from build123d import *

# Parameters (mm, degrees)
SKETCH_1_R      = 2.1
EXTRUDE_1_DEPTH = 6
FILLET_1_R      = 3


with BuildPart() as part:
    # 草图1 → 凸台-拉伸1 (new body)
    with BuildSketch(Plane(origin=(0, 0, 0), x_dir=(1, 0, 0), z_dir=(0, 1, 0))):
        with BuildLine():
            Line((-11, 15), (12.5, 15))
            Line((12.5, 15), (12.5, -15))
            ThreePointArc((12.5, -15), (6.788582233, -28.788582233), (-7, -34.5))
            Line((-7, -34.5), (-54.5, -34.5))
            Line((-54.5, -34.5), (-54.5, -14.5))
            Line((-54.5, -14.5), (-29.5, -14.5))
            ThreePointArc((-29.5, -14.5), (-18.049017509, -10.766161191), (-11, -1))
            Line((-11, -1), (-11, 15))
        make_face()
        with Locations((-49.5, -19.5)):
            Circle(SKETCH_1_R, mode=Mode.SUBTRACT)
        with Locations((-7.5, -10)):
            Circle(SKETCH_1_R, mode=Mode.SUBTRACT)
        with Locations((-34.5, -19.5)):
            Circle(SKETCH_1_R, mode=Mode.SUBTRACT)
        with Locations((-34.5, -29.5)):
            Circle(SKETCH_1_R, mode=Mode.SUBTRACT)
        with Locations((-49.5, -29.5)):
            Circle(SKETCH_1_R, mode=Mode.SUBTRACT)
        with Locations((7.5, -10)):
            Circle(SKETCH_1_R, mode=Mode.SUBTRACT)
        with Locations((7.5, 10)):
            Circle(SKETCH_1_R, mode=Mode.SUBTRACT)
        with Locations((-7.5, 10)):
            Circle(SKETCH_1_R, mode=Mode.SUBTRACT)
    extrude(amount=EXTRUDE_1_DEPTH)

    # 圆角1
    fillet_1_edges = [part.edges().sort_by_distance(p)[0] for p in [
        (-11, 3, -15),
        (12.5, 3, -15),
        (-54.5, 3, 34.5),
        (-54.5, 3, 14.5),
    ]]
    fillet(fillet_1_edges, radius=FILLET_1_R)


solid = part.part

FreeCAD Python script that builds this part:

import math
import FreeCAD as App
import Part
import Sketcher

V = App.Vector
Q = App.Units.Quantity


def edges_at(feature, points):
    """Names of the edges that pass closest to the given points."""
    edges = feature.Shape.Edges
    near = lambda p: min(range(len(edges)), key=lambda i: edges[i].distToShape(Part.Vertex(*p))[0])
    return sorted({f"Edge{near(p) + 1}" for p in points})

doc = App.newDocument("Part")
body = doc.addObject("PartDesign::Body", "Body")

# Sketch on XZ plane
sketch1 = body.newObject("Sketcher::SketchObject", "Sketch")
sketch1.AttachmentSupport = (doc.getObject("XZ_Plane"), [""])
sketch1.MapMode = "FlatFace"
sketch1.addGeometry([
    Part.LineSegment(V(12.5, -15, 0), V(-11, -15, 0)),  # 0
    Part.LineSegment(V(-11, -15, 0), V(-11, 1, 0)),  # 1
    Part.ArcOfCircle(Part.Circle(V(-29.5, -4.9, 0), V(0, 0, 1), 19.4), math.radians(18), math.radians(90)),  # 2
    Part.LineSegment(V(-29.5, 14.5, 0), V(-54.5, 14.5, 0)),  # 3
    Part.LineSegment(V(-54.5, 14.5, 0), V(-54.5, 34.5, 0)),  # 4
    Part.LineSegment(V(-54.5, 34.5, 0), V(-7, 34.5, 0)),  # 5
    Part.ArcOfCircle(Part.Circle(V(-7, 15, 0), V(0, 0, 1), 19.5), math.radians(0), math.radians(90)),  # 6
    Part.LineSegment(V(12.5, 15, 0), V(12.5, -15, 0)),  # 7
    Part.Circle(V(7.5, 10, 0), V(0, 0, 1), 2.1),  # 8
    Part.Circle(V(-7.5, 10, 0), V(0, 0, 1), 2.1),  # 9
    Part.Circle(V(-34.5, 29.5, 0), V(0, 0, 1), 2.1),  # 10
    Part.Circle(V(-49.5, 29.5, 0), V(0, 0, 1), 2.1),  # 11
    Part.Circle(V(-34.5, 19.5, 0), V(0, 0, 1), 2.1),  # 12
    Part.Circle(V(-49.5, 19.5, 0), V(0, 0, 1), 2.1),  # 13
    Part.Circle(V(7.5, -10, 0), V(0, 0, 1), 2.1),  # 14
    Part.Circle(V(-7.5, -10, 0), V(0, 0, 1), 2.1),  # 15
], False)
sketch1.addConstraint([
    Sketcher.Constraint("Coincident", 0, 2, 1, 1),
    Sketcher.Constraint("Coincident", 1, 2, 2, 1),
    Sketcher.Constraint("Tangent", 2, 2, 3, 1),
    Sketcher.Constraint("Coincident", 3, 2, 4, 1),
    Sketcher.Constraint("Coincident", 4, 2, 5, 1),
    Sketcher.Constraint("Tangent", 5, 2, 6, 2),
    Sketcher.Constraint("Tangent", 6, 1, 7, 1),
    Sketcher.Constraint("Coincident", 7, 2, 0, 1),
    Sketcher.Constraint("Horizontal", 0),
    Sketcher.Constraint("Vertical", 1),
    Sketcher.Constraint("Horizontal", 3),
    Sketcher.Constraint("Vertical", 4),
    Sketcher.Constraint("Horizontal", 5),
    Sketcher.Constraint("Vertical", 7),
    Sketcher.Constraint("Equal", 8, 9),
    Sketcher.Constraint("Equal", 9, 10),
    Sketcher.Constraint("Equal", 10, 11),
    Sketcher.Constraint("Equal", 11, 12),
    Sketcher.Constraint("Equal", 12, 13),
    Sketcher.Constraint("Equal", 13, 14),
    Sketcher.Constraint("Equal", 14, 15),
    Sketcher.Constraint("Symmetric", 9, 3, 14, 3, -1, 1),
    Sketcher.Constraint("Symmetric", 8, 3, 15, 3, -1, 1),
    Sketcher.Constraint("Symmetric", 8, 3, 9, 3, -2),
    Sketcher.Constraint("Horizontal", 10, 3, 11, 3),
    Sketcher.Constraint("Horizontal", 12, 3, 13, 3),
    Sketcher.Constraint("Vertical", 10, 3, 12, 3),
    Sketcher.Constraint("Vertical", 11, 3, 13, 3),
    Sketcher.Constraint("Diameter", 8, Q("4.2 mm")),
    Sketcher.Constraint("Radius", 6, Q("19.5 mm")),
    Sketcher.Constraint("DistanceX", 3, 2, 3, 1, Q("25 mm")),
    Sketcher.Constraint("DistanceY", 1, 1, 1, 2, Q("16 mm")),
    Sketcher.Constraint("DistanceY", 4, 1, 4, 2, Q("20 mm")),
    Sketcher.Constraint("DistanceY", 7, 2, 7, 1, Q("30 mm")),
    Sketcher.Constraint("DistanceX", 0, 2, 0, 1, Q("23.5 mm")),
    Sketcher.Constraint("DistanceX", 5, 1, 5, 2, Q("47.5 mm")),
    Sketcher.Constraint("DistanceX", 6, 3, -1, 1, Q("7 mm")),
    Sketcher.Constraint("DistanceY", -1, 1, 6, 3, Q("15 mm")),
    Sketcher.Constraint("DistanceY", -1, 1, 8, 3, Q("10 mm")),
    Sketcher.Constraint("DistanceX", 2, 3, 8, 3, Q("37 mm")),
    Sketcher.Constraint("DistanceX", 10, 3, 9, 3, Q("27 mm")),
    Sketcher.Constraint("DistanceX", 11, 3, 10, 3, Q("15 mm")),
    Sketcher.Constraint("DistanceY", 12, 3, 10, 3, Q("10 mm")),
    Sketcher.Constraint("DistanceY", 2, 2, 12, 3, Q("5 mm")),
])
pad1 = body.newObject("PartDesign::Pad", "Pad")
pad1.Profile = sketch1
pad1.Length = 6
pad1.Reversed = True
doc.recompute()

fillet = body.newObject("PartDesign::Fillet", "Fillet")
fillet.Base = (pad1, edges_at(pad1, [
    (-11, 3, -15),
    (12.5, 3, -15),
    (-54.5, 3, 34.5),
    (-54.5, 3, 14.5),
]))
fillet.Radius = 3

doc.recompute()
